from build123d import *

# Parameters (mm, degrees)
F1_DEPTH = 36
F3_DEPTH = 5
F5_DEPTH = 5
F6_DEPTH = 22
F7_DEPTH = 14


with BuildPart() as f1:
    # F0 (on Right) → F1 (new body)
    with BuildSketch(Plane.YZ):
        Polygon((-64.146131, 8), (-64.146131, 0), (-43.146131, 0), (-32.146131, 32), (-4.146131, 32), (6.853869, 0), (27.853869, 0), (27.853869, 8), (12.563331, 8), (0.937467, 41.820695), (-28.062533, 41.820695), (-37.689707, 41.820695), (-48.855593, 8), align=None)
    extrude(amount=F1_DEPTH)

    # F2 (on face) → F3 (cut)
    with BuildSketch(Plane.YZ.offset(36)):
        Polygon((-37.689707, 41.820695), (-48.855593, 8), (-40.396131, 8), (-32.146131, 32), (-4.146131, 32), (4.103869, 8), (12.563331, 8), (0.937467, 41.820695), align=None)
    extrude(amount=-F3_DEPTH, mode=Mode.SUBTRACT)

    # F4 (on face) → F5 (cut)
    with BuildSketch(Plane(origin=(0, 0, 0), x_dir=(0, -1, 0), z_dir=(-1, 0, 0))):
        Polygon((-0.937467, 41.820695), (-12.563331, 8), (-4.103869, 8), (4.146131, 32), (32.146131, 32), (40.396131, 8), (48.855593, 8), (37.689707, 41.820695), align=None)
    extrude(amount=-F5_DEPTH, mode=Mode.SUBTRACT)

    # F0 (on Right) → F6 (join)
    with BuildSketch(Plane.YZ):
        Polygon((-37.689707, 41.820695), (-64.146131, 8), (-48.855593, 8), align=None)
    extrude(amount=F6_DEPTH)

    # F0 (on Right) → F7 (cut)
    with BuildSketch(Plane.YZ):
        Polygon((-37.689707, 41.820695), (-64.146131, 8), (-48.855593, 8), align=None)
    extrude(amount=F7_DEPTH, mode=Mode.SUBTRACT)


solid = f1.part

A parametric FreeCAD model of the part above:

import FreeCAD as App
import Part
import Sketcher
from FreeCAD import Vector
Q = App.Units.Quantity

doc = App.newDocument("Part")
body = doc.addObject("PartDesign::Body", "Body")

# Sketch on YZ plane
sketch1 = body.newObject("Sketcher::SketchObject", "Sketch")
sketch1.AttachmentSupport = (doc.getObject("YZ_Plane"), [""])
sketch1.MapMode = "FlatFace"
sketch1.addGeometry([
    Part.LineSegment(Vector(-64, 8, 0), Vector(-64, 0, 0)),  # 0
    Part.LineSegment(Vector(-64, 0, 0), Vector(-43, 0, 0)),  # 1
    Part.LineSegment(Vector(-43, 0, 0), Vector(-32, 32, 0)),  # 2
    Part.LineSegment(Vector(-32, 32, 0), Vector(-4, 32, 0)),  # 3
    Part.LineSegment(Vector(-4, 32, 0), Vector(7, 0, 0)),  # 4
    Part.LineSegment(Vector(7, 0, 0), Vector(28, 0, 0)),  # 5
    Part.LineSegment(Vector(28, 0, 0), Vector(28, 8, 0)),  # 6
    Part.LineSegment(Vector(28, 8, 0), Vector(13, 8, 0)),  # 7
    Part.LineSegment(Vector(13, 8, 0), Vector(1, 42, 0)),  # 8
    Part.LineSegment(Vector(1, 42, 0), Vector(-38, 42, 0)),  # 9
    Part.LineSegment(Vector(-38, 42, 0), Vector(-49, 8, 0)),  # 10
    Part.LineSegment(Vector(-49, 8, 0), Vector(-64, 8, 0)),  # 11
], False)
sketch1.addConstraint([
    Sketcher.Constraint("Coincident", 0, 2, 1, 1),
    Sketcher.Constraint("Coincident", 1, 2, 2, 1),
    Sketcher.Constraint("Coincident", 2, 2, 3, 1),
    Sketcher.Constraint("Coincident", 3, 2, 4, 1),
    Sketcher.Constraint("Coincident", 4, 2, 5, 1),
    Sketcher.Constraint("Coincident", 5, 2, 6, 1),
    Sketcher.Constraint("Coincident", 6, 2, 7, 1),
    Sketcher.Constraint("Coincident", 7, 2, 8, 1),
    Sketcher.Constraint("Coincident", 8, 2, 9, 1),
    Sketcher.Constraint("Coincident", 9, 2, 10, 1),
    Sketcher.Constraint("Coincident", 10, 2, 11, 1),
    Sketcher.Constraint("Coincident", 11, 2, 0, 1),
    Sketcher.Constraint("Vertical", 0),
    Sketcher.Constraint("Horizontal", 1),
    Sketcher.Constraint("Horizontal", 3),
    Sketcher.Constraint("Horizontal", 5),
    Sketcher.Constraint("Vertical", 6),
    Sketcher.Constraint("Horizontal", 7),
    Sketcher.Constraint("Horizontal", 9),
    Sketcher.Constraint("Horizontal", 11),
    Sketcher.Constraint("PointOnObject", 0, 2, -1),
    Sketcher.Constraint("PointOnObject", 4, 2, -1),
    Sketcher.Constraint("Parallel", 4, 8),
    Sketcher.Constraint("Horizontal", 7, 2, 10, 2),
    Sketcher.Constraint("Equal", 1, 5),
    Sketcher.Constraint("Equal", 7, 11),
    Sketcher.Constraint("Equal", 2, 4),
    Sketcher.Constraint("DistanceX", 1, 1, 1, 2, Q("21 mm")),
    Sketcher.Constraint("DistanceX", 3, 1, 3, 2, Q("28 mm")),
    Sketcher.Constraint("DistanceY", 0, 2, 0, 1, Q("8 mm")),
    Sketcher.Constraint("DistanceY", -1, 1, 2, 2, Q("32 mm")),
    Sketcher.Constraint("DistanceX", 1, 2, 2, 2, Q("11 mm")),
    Sketcher.Constraint("DistanceX", 8, 2, 6, 2, Q("26.916402 mm")),
    Sketcher.Constraint("Distance", 8, Q("35.763111 mm")),
    Sketcher.Constraint("Distance", 10, Q("35.616238 mm")),
    Sketcher.Constraint("DistanceX", 0, 2, -1, 1, Q("64.146131 mm")),
])
pad1 = body.newObject("PartDesign::Pad", "Pad")
pad1.Profile = sketch1
pad1.Length = 36

# Sketch on YZ plane
sketch2 = body.newObject("Sketcher::SketchObject", "Sketch001")
sketch2.AttachmentSupport = (doc.getObject("YZ_Plane"), [""])
sketch2.MapMode = "FlatFace"
sketch2.AttachmentOffset = App.Placement(Vector(0, 0, 36), App.Rotation())
sketch2.addGeometry([
    Part.LineSegment(Vector(-38, 42, 0), Vector(-49, 8, 0)),  # 0
    Part.LineSegment(Vector(-49, 8, 0), Vector(-40, 8, 0)),  # 1
    Part.LineSegment(Vector(-40, 8, 0), Vector(-32, 32, 0)),  # 2
    Part.LineSegment(Vector(-32, 32, 0), Vector(-4, 32, 0)),  # 3
    Part.LineSegment(Vector(-4, 32, 0), Vector(4, 8, 0)),  # 4
    Part.LineSegment(Vector(4, 8, 0), Vector(13, 8, 0)),  # 5
    Part.LineSegment(Vector(13, 8, 0), Vector(1, 42, 0)),  # 6
    Part.LineSegment(Vector(1, 42, 0), Vector(-38, 42, 0)),  # 7
], False)
sketch2.addConstraint([
    Sketcher.Constraint("Coincident", 0, 2, 1, 1),
    Sketcher.Constraint("Coincident", 1, 2, 2, 1),
    Sketcher.Constraint("Coincident", 2, 2, 3, 1),
    Sketcher.Constraint("Coincident", 3, 2, 4, 1),
    Sketcher.Constraint("Coincident", 4, 2, 5, 1),
    Sketcher.Constraint("Coincident", 5, 2, 6, 1),
    Sketcher.Constraint("Coincident", 6, 2, 7, 1),
    Sketcher.Constraint("Coincident", 7, 2, 0, 1),
    Sketcher.Constraint("Horizontal", 1),
    Sketcher.Constraint("Horizontal", 3),
    Sketcher.Constraint("Horizontal", 5),
    Sketcher.Constraint("Horizontal", 7),
    Sketcher.Constraint("Parallel", 4, 6),
    Sketcher.Constraint("Horizontal", 1, 2, 4, 2),
    Sketcher.Constraint("Equal", 1, 5),
    Sketcher.Constraint("Equal", 2, 4),
    Sketcher.Constraint("DistanceX", 3, 1, 3, 2, Q("28 mm")),
    Sketcher.Constraint("DistanceY", -1, 1, 0, 2, Q("8 mm")),
    Sketcher.Constraint("DistanceY", -1, 1, 2, 2, Q("32 mm")),
    Sketcher.Constraint("DistanceX", 1, 2, 4, 2, Q("44.5 mm")),
    Sketcher.Constraint("DistanceX", 5, 1, 5, 2, Q("8.459462 mm")),
    Sketcher.Constraint("Distance", 0, Q("35.616238 mm")),
    Sketcher.Constraint("Distance", 6, Q("35.763111 mm")),
    Sketcher.Constraint("DistanceX", 1, 2, -1, 1, Q("40.396131 mm")),
])
pocket1 = body.newObject("PartDesign::Pocket", "Pocket")
pocket1.Profile = sketch2
pocket1.Length = 5

# Sketch on YZ plane
sketch3 = body.newObject("Sketcher::SketchObject", "Sketch002")
sketch3.AttachmentSupport = (doc.getObject("YZ_Plane"), [""])
sketch3.MapMode = "FlatFace"
sketch3.addGeometry([
    Part.LineSegment(Vector(1, 42, 0), Vector(13, 8, 0)),  # 0
    Part.LineSegment(Vector(13, 8, 0), Vector(4, 8, 0)),  # 1
    Part.LineSegment(Vector(4, 8, 0), Vector(-4, 32, 0)),  # 2
    Part.LineSegment(Vector(-4, 32, 0), Vector(-32, 32, 0)),  # 3
    Part.LineSegment(Vector(-32, 32, 0), Vector(-40, 8, 0)),  # 4
    Part.LineSegment(Vector(-40, 8, 0), Vector(-49, 8, 0)),  # 5
    Part.LineSegment(Vector(-49, 8, 0), Vector(-38, 42, 0)),  # 6
    Part.LineSegment(Vector(-38, 42, 0), Vector(1, 42, 0)),  # 7
], False)
sketch3.addConstraint([
    Sketcher.Constraint("Coincident", 0, 2, 1, 1),
    Sketcher.Constraint("Coincident", 1, 2, 2, 1),
    Sketcher.Constraint("Coincident", 2, 2, 3, 1),
    Sketcher.Constraint("Coincident", 3, 2, 4, 1),
    Sketcher.Constraint("Coincident", 4, 2, 5, 1),
    Sketcher.Constraint("Coincident", 5, 2, 6, 1),
    Sketcher.Constraint("Coincident", 6, 2, 7, 1),
    Sketcher.Constraint("Coincident", 7, 2, 0, 1),
    Sketcher.Constraint("Horizontal", 1),
    Sketcher.Constraint("Horizontal", 3),
    Sketcher.Constraint("Horizontal", 5),
    Sketcher.Constraint("Horizontal", 7),
    Sketcher.Constraint("Parallel", 0, 2),
    Sketcher.Constraint("Horizontal", 1, 2, 4, 2),
    Sketcher.Constraint("Equal", 1, 5),
    Sketcher.Constraint("Equal", 2, 4),
    Sketcher.Constraint("DistanceX", 3, 2, 3, 1, Q("28 mm")),
    Sketcher.Constraint("DistanceY", -1, 1, 0, 2, Q("8 mm")),
    Sketcher.Constraint("DistanceY", -1, 1, 2, 2, Q("32 mm")),
    Sketcher.Constraint("DistanceX", 4, 2, 1, 2, Q("44.5 mm")),
    Sketcher.Constraint("DistanceX", 1, 2, 1, 1, Q("8.459462 mm")),
    Sketcher.Constraint("Distance", 0, Q("35.763111 mm")),
    Sketcher.Constraint("Distance", 6, Q("35.616238 mm")),
    Sketcher.Constraint("DistanceX", -1, 1, 0, 2, Q("12.563331 mm")),
])
pocket2 = body.newObject("PartDesign::Pocket", "Pocket001")
pocket2.Profile = sketch3
pocket2.Length = 5
pocket2.Reversed = True

# Sketch on YZ plane
sketch4 = body.newObject("Sketcher::SketchObject", "Sketch003")
sketch4.AttachmentSupport = (doc.getObject("YZ_Plane"), [""])
sketch4.MapMode = "FlatFace"
sketch4.addGeometry([
    Part.LineSegment(Vector(-38, 42, 0), Vector(-64, 8, 0)),
    Part.LineSegment(Vector(-64, 8, 0), Vector(-49, 8, 0)),
    Part.LineSegment(Vector(-49, 8, 0), Vector(-38, 42, 0)),
], False)
sketch4.addConstraint([
    Sketcher.Constraint("Coincident", 0, 2, 1, 1),
    Sketcher.Constraint("Coincident", 1, 2, 2, 1),
    Sketcher.Constraint("Coincident", 2, 2, 0, 1),
    Sketcher.Constraint("Horizontal", 1),
    Sketcher.Constraint("DistanceY", -1, 1, 0, 2, Q("8 mm")),
    Sketcher.Constraint("Distance", 0, Q("42.93928 mm")),
    Sketcher.Constraint("Distance", 2, Q("35.616238 mm")),
    Sketcher.Constraint("DistanceX", 1, 1, 1, 2, Q("15.290538 mm")),
    Sketcher.Constraint("DistanceX", 0, 2, -1, 1, Q("64.146131 mm")),
])
pad2 = body.newObject("PartDesign::Pad", "Pad001")
pad2.Profile = sketch4
pad2.Length = 22

# Sketch on YZ plane
sketch5 = body.newObject("Sketcher::SketchObject", "Sketch004")
sketch5.AttachmentSupport = (doc.getObject("YZ_Plane"), [""])
sketch5.MapMode = "FlatFace"
sketch5.addGeometry([
    Part.LineSegment(Vector(-38, 42, 0), Vector(-64, 8, 0)),
    Part.LineSegment(Vector(-64, 8, 0), Vector(-49, 8, 0)),
    Part.LineSegment(Vector(-49, 8, 0), Vector(-38, 42, 0)),
], False)
sketch5.addConstraint([
    Sketcher.Constraint("Coincident", 0, 2, 1, 1),
    Sketcher.Constraint("Coincident", 1, 2, 2, 1),
    Sketcher.Constraint("Coincident", 2, 2, 0, 1),
    Sketcher.Constraint("Horizontal", 1),
    Sketcher.Constraint("DistanceY", -1, 1, 0, 2, Q("8 mm")),
    Sketcher.Constraint("Distance", 0, Q("42.93928 mm")),
    Sketcher.Constraint("Distance", 2, Q("35.616238 mm")),
    Sketcher.Constraint("DistanceX", 1, 1, 1, 2, Q("15.290538 mm")),
    Sketcher.Constraint("DistanceX", 0, 2, -1, 1, Q("64.146131 mm")),
])
pocket3 = body.newObject("PartDesign::Pocket", "Pocket002")
pocket3.Profile = sketch5
pocket3.Length = 14
pocket3.Reversed = True

doc.recompute()
